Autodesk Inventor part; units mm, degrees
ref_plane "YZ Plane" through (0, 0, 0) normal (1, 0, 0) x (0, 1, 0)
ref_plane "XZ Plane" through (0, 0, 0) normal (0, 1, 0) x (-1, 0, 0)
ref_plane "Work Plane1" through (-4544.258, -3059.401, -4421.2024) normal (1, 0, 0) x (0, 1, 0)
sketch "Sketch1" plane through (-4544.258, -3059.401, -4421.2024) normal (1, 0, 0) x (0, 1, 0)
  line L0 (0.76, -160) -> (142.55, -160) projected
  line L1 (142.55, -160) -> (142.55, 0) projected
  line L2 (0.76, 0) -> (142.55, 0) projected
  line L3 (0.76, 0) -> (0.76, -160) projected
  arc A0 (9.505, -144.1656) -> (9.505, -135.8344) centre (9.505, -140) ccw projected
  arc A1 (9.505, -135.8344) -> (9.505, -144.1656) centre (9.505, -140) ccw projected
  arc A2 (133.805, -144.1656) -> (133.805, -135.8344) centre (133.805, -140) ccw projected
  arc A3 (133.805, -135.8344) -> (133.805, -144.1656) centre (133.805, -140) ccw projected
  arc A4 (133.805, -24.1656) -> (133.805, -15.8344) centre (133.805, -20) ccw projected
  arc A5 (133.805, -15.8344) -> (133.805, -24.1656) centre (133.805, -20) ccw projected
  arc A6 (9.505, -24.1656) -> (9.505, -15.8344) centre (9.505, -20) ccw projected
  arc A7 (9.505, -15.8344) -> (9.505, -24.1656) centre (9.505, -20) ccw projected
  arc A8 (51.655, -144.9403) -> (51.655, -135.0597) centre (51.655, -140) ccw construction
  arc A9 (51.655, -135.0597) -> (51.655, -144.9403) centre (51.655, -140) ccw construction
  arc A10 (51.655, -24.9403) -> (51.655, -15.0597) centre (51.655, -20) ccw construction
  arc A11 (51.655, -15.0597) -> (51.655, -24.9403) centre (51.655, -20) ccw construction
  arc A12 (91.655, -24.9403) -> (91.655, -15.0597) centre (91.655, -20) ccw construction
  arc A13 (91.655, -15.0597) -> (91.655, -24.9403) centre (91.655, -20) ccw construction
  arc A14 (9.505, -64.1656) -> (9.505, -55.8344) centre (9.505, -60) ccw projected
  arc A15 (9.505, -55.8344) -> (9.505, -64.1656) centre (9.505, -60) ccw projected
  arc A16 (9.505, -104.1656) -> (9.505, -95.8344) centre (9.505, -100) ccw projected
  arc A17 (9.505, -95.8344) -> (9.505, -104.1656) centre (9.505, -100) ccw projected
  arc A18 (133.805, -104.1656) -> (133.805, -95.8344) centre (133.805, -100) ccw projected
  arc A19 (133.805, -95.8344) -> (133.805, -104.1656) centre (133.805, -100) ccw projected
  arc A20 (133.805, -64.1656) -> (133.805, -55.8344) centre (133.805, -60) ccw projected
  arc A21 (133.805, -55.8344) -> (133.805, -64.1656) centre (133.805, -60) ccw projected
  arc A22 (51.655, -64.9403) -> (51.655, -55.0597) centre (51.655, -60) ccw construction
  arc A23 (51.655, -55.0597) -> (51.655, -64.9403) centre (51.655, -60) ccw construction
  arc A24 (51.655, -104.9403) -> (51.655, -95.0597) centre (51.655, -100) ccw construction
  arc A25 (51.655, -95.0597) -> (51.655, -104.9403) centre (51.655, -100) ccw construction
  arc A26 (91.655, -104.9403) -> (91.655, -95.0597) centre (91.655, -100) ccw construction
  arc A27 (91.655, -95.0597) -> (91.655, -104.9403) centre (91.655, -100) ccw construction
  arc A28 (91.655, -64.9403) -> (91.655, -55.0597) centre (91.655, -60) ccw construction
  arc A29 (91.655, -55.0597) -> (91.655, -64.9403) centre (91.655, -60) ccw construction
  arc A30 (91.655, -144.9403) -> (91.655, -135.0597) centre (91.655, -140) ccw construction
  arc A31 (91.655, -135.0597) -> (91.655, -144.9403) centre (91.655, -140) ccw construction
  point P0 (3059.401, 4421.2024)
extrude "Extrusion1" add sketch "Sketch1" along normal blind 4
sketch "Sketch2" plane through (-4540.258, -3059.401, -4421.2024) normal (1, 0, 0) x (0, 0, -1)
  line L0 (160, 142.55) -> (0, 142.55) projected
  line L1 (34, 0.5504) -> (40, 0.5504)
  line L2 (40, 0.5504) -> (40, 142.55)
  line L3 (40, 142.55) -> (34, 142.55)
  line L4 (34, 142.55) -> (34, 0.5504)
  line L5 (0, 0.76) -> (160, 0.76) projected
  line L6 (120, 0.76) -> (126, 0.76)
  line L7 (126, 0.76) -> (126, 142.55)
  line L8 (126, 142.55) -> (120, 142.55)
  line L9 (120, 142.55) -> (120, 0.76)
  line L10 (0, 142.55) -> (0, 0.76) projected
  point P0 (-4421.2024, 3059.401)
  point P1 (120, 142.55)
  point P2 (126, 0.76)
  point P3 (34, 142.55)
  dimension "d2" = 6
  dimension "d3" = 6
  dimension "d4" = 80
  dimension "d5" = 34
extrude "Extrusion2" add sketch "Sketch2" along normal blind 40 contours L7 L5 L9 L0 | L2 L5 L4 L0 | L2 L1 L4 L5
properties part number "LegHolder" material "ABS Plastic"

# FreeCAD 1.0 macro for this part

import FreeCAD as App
import Part
import Sketcher

doc = App.newDocument("Part")
body = doc.addObject("PartDesign::Body", "Body")

sketch1 = body.newObject("Sketcher::SketchObject", "Sketch")
sketch1.AttachmentSupport = (doc.getObject("YZ_Plane"), [""])
sketch1.MapMode = "FlatFace"
sketch1.AttachmentOffset = App.Placement(App.Vector(0, 0, -4544.258), App.Rotation())
sketch1.addGeometry(Part.LineSegment(App.Vector(-3058.641, -4421.2024, 0), App.Vector(-3058.641, -4581.2024, 0)), False)
sketch1.addGeometry(Part.LineSegment(App.Vector(-3058.641, -4581.2024, 0), App.Vector(-2916.851, -4581.2024, 0)), False)
sketch1.addGeometry(Part.LineSegment(App.Vector(-2916.851, -4581.2024, 0), App.Vector(-2916.851, -4421.2024, 0)), False)
sketch1.addGeometry(Part.LineSegment(App.Vector(-2916.851, -4421.2024, 0), App.Vector(-3058.641, -4421.2024, 0)), False)
sketch1.addGeometry(Part.Circle(App.Vector(-3049.896, -4561.2024, 0), App.Vector(0, 0, 1), 4.1656), False)
sketch1.addGeometry(Part.Circle(App.Vector(-3049.896, -4521.2024, 0), App.Vector(0, 0, 1), 4.1656), False)
sketch1.addGeometry(Part.Circle(App.Vector(-2925.596, -4561.2024, 0), App.Vector(0, 0, 1), 4.1656), False)
sketch1.addGeometry(Part.Circle(App.Vector(-2925.596, -4521.2024, 0), App.Vector(0, 0, 1), 4.1656), False)
sketch1.addGeometry(Part.Circle(App.Vector(-3049.896, -4481.2024, 0), App.Vector(0, 0, 1), 4.1656), False)
sketch1.addGeometry(Part.Circle(App.Vector(-3049.896, -4441.2024, 0), App.Vector(0, 0, 1), 4.1656), False)
sketch1.addGeometry(Part.Circle(App.Vector(-2925.596, -4481.2024, 0), App.Vector(0, 0, 1), 4.1656), False)
sketch1.addGeometry(Part.Circle(App.Vector(-2925.596, -4441.2024, 0), App.Vector(0, 0, 1), 4.1656), False)
sketch1.addConstraint(Sketcher.Constraint("Coincident", 0, 2, 1, 1))
sketch1.addConstraint(Sketcher.Constraint("Coincident", 1, 2, 2, 1))
sketch1.addConstraint(Sketcher.Constraint("Coincident", 2, 2, 3, 1))
sketch1.addConstraint(Sketcher.Constraint("Coincident", 3, 2, 0, 1))
sketch1.addConstraint(Sketcher.Constraint("Vertical", 0))
sketch1.addConstraint(Sketcher.Constraint("Horizontal", 1))
sketch1.addConstraint(Sketcher.Constraint("Vertical", 2))
sketch1.addConstraint(Sketcher.Constraint("Horizontal", 3))
sketch1.addConstraint(Sketcher.Constraint("Equal", 4, 5))
sketch1.addConstraint(Sketcher.Constraint("Equal", 5, 6))
sketch1.addConstraint(Sketcher.Constraint("Equal", 6, 7))
sketch1.addConstraint(Sketcher.Constraint("Equal", 7, 8))
sketch1.addConstraint(Sketcher.Constraint("Equal", 8, 9))
sketch1.addConstraint(Sketcher.Constraint("Equal", 9, 10))
sketch1.addConstraint(Sketcher.Constraint("Equal", 10, 11))
sketch1.addConstraint(Sketcher.Constraint("Horizontal", 4, 3, 6, 3))
sketch1.addConstraint(Sketcher.Constraint("Horizontal", 5, 3, 7, 3))
sketch1.addConstraint(Sketcher.Constraint("Horizontal", 8, 3, 10, 3))
sketch1.addConstraint(Sketcher.Constraint("Horizontal", 9, 3, 11, 3))
sketch1.addConstraint(Sketcher.Constraint("Vertical", 4, 3, 5, 3))
sketch1.addConstraint(Sketcher.Constraint("Vertical", 6, 3, 7, 3))
sketch1.addConstraint(Sketcher.Constraint("Vertical", 5, 3, 8, 3))
sketch1.addConstraint(Sketcher.Constraint("Vertical", 8, 3, 9, 3))
sketch1.addConstraint(Sketcher.Constraint("Vertical", 7, 3, 10, 3))
sketch1.addConstraint(Sketcher.Constraint("Vertical", 10, 3, 11, 3))
sketch1.addConstraint(Sketcher.Constraint("DistanceY", 0, 2, 0, 1, 160.0))
sketch1.addConstraint(Sketcher.Constraint("DistanceY", 4, 3, 5, 3, 40.0))
sketch1.addConstraint(Sketcher.Constraint("DistanceY", 5, 3, 8, 3, 40.0))
sketch1.addConstraint(Sketcher.Constraint("DistanceY", 8, 3, 9, 3, 40.0))
sketch1.addConstraint(Sketcher.Constraint("DistanceY", 0, 2, 4, 3, 20.0))
sketch1.addConstraint(Sketcher.Constraint("Diameter", 4, 8.3312))
sketch1.addConstraint(Sketcher.Constraint("DistanceX", 1, 1, 1, 2, 141.79))
sketch1.addConstraint(Sketcher.Constraint("DistanceX", 4, 3, 6, 3, 124.3))
sketch1.addConstraint(Sketcher.Constraint("DistanceX", 4, 3, -1, 1, 3049.896))
sketch1.addConstraint(Sketcher.Constraint("DistanceX", 0, 2, -1, 1, 3058.641))
sketch1.addConstraint(Sketcher.Constraint("DistanceY", 4, 3, -1, 1, 4561.2024))
pad1 = body.newObject("PartDesign::Pad", "Pad")
pad1.Profile = sketch1
pad1.Length = 4

sketch2 = body.newObject("Sketcher::SketchObject", "Sketch001")
sketch2.AttachmentSupport = (doc.getObject("YZ_Plane"), [""])
sketch2.MapMode = "FlatFace"
sketch2.AttachmentOffset = App.Placement(App.Vector(0, 0, -4540.258), App.Rotation())
sketch2.addGeometry(Part.LineSegment(App.Vector(-3058.641, -4547.2024, 0), App.Vector(-2916.851, -4547.2024, 0)), False)
sketch2.addGeometry(Part.LineSegment(App.Vector(-2916.851, -4547.2024, 0), App.Vector(-2916.851, -4541.2024, 0)), False)
sketch2.addGeometry(Part.LineSegment(App.Vector(-2916.851, -4541.2024, 0), App.Vector(-3058.641, -4541.2024, 0)), False)
sketch2.addGeometry(Part.LineSegment(App.Vector(-3058.641, -4541.2024, 0), App.Vector(-3058.641, -4547.2024, 0)), False)
sketch2.addGeometry(Part.LineSegment(App.Vector(-2916.851, -4461.2024, 0), App.Vector(-2916.851, -4455.2024, 0)), False)
sketch2.addGeometry(Part.LineSegment(App.Vector(-2916.851, -4455.2024, 0), App.Vector(-3058.8506, -4455.2024, 0)), False)
sketch2.addGeometry(Part.LineSegment(App.Vector(-3058.8506, -4455.2024, 0), App.Vector(-3058.8506, -4461.2024, 0)), False)
sketch2.addGeometry(Part.LineSegment(App.Vector(-3058.8506, -4461.2024, 0), App.Vector(-2916.851, -4461.2024, 0)), False)
sketch2.addConstraint(Sketcher.Constraint("Coincident", 0, 2, 1, 1))
sketch2.addConstraint(Sketcher.Constraint("Coincident", 1, 2, 2, 1))
sketch2.addConstraint(Sketcher.Constraint("Coincident", 2, 2, 3, 1))
sketch2.addConstraint(Sketcher.Constraint("Coincident", 3, 2, 0, 1))
sketch2.addConstraint(Sketcher.Constraint("Coincident", 4, 2, 5, 1))
sketch2.addConstraint(Sketcher.Constraint("Coincident", 5, 2, 6, 1))
sketch2.addConstraint(Sketcher.Constraint("Coincident", 6, 2, 7, 1))
sketch2.addConstraint(Sketcher.Constraint("Coincident", 7, 2, 4, 1))
sketch2.addConstraint(Sketcher.Constraint("Horizontal", 0))
sketch2.addConstraint(Sketcher.Constraint("Vertical", 1))
sketch2.addConstraint(Sketcher.Constraint("Horizontal", 2))
sketch2.addConstraint(Sketcher.Constraint("Vertical", 3))
sketch2.addConstraint(Sketcher.Constraint("Vertical", 4))
sketch2.addConstraint(Sketcher.Constraint("Horizontal", 5))
sketch2.addConstraint(Sketcher.Constraint("Vertical", 6))
sketch2.addConstraint(Sketcher.Constraint("Horizontal", 7))
sketch2.addConstraint(Sketcher.Constraint("Vertical", 1, 2, 4, 2))
sketch2.addConstraint(Sketcher.Constraint("Equal", 3, 4))
sketch2.addConstraint(Sketcher.Constraint("DistanceY", 1, 1, 1, 2, 6.0))
sketch2.addConstraint(Sketcher.Constraint("DistanceY", 2, 2, 6, 2, 80.0))
sketch2.addConstraint(Sketcher.Constraint("DistanceX", 0, 1, 0, 2, 141.79))
sketch2.addConstraint(Sketcher.Constraint("DistanceX", 5, 2, 5, 1, 141.9996))
sketch2.addConstraint(Sketcher.Constraint("DistanceX", 0, 2, -1, 1, 2916.851))
sketch2.addConstraint(Sketcher.Constraint("DistanceY", 0, 2, -1, 1, 4547.2024))
pad2 = body.newObject("PartDesign::Pad", "Pad001")
pad2.Profile = sketch2
pad2.Length = 40

doc.recompute()
